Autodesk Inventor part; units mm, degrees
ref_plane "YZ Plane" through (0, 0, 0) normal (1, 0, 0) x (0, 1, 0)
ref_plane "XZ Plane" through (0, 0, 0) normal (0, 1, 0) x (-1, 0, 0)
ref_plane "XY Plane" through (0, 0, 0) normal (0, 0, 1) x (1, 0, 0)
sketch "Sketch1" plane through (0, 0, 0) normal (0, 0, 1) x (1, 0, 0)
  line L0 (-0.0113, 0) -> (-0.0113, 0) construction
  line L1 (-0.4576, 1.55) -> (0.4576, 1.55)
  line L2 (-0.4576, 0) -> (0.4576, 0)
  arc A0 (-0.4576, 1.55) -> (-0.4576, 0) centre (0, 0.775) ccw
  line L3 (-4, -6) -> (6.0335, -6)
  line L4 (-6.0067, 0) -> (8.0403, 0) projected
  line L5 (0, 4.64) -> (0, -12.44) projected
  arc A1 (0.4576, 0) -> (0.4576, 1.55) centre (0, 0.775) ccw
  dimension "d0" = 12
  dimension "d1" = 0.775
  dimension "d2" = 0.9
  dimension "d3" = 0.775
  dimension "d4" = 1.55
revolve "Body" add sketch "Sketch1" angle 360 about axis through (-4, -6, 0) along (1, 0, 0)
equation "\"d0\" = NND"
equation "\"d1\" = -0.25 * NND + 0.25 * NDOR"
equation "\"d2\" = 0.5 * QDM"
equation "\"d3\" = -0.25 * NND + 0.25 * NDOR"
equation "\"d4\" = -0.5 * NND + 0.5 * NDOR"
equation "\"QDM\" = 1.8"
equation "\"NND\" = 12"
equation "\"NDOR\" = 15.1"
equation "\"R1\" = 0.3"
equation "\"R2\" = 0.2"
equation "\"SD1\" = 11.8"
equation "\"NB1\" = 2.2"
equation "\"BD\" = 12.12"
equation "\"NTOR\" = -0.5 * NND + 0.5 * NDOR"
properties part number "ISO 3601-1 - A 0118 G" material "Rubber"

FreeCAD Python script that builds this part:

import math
import FreeCAD as App
import Part
import Sketcher

doc = App.newDocument("Part")
params = doc.addObject("Spreadsheet::Sheet", "Params")
for row, (alias, value) in enumerate([
    ("sketch1_radius", "0.9 mm"),
    ("revolution_angle", "360 deg"),
], start=1):
    params.set(f"A{row}", alias)
    params.set(f"B{row}", "=" + value)
    params.setAlias(f"B{row}", alias)

body = doc.addObject("PartDesign::Body", "Body")

# Sketch on XY plane
sketch1 = doc.addObject("Sketcher::SketchObject", "Sketch")
body.addObject(sketch1)
sketch1.AttachmentSupport = (doc.XY_Plane, [""])
sketch1.MapMode = "FlatFace"
sketch1.addGeometry([
    Part.ArcOfCircle(Part.Circle(App.Vector(0, 0.775, 0), App.Vector(0, 0, 1), 0.900013), math.radians(120.559795), math.radians(239.440205)),
    Part.LineSegment(App.Vector(-0.4576, 0, 0), App.Vector(0.4576, 0, 0)),
    Part.ArcOfCircle(Part.Circle(App.Vector(0, 0.775, 0), App.Vector(0, 0, 1), 0.900013), math.radians(-59.440205), math.radians(59.440205)),
    Part.LineSegment(App.Vector(0.4576, 1.55, 0), App.Vector(-0.4576, 1.55, 0)),
], False)
sketch1.addGeometry(Part.LineSegment(App.Vector(-0.4576, -6, 0), App.Vector(0.4576, -6, 0)), True)  # axis
sketch1.addConstraint([
    Sketcher.Constraint("Coincident", 0, 2, 1, 1),
    Sketcher.Constraint("Coincident", 1, 2, 2, 1),
    Sketcher.Constraint("Coincident", 2, 2, 3, 1),
    Sketcher.Constraint("Coincident", 3, 2, 0, 1),
    Sketcher.Constraint("Horizontal", 1),
    Sketcher.Constraint("Horizontal", 3),
    Sketcher.Constraint("Horizontal", 4),
    Sketcher.Constraint("Coincident", 2, 3, 0, 3),
    Sketcher.Constraint("Equal", 0, 2),
    Sketcher.Constraint("Symmetric", 0, 2, 1, 2, -1, 1),
    Sketcher.Constraint("Vertical", 1, 2, 2, 2),
    Sketcher.Constraint("Vertical", 3, 2, 4, 1),
    Sketcher.Constraint("Vertical", 2, 2, 4, 2),
    Sketcher.Constraint("Radius", 0, 0.9),
    Sketcher.Constraint("DistanceY", -1, 1, 2, 2, 1.55),
    Sketcher.Constraint("DistanceY", 4, 1, -1, 1, 6.0),
])
sketch1.setExpression("Constraints[13]", "Params.sketch1_radius")
revolution = doc.addObject("PartDesign::Revolution", "Revolution")
body.addObject(revolution)
revolution.Profile = sketch1
revolution.ReferenceAxis = (sketch1, ["Axis0"])
revolution.setExpression("Angle", "Params.revolution_angle")

doc.recompute()
